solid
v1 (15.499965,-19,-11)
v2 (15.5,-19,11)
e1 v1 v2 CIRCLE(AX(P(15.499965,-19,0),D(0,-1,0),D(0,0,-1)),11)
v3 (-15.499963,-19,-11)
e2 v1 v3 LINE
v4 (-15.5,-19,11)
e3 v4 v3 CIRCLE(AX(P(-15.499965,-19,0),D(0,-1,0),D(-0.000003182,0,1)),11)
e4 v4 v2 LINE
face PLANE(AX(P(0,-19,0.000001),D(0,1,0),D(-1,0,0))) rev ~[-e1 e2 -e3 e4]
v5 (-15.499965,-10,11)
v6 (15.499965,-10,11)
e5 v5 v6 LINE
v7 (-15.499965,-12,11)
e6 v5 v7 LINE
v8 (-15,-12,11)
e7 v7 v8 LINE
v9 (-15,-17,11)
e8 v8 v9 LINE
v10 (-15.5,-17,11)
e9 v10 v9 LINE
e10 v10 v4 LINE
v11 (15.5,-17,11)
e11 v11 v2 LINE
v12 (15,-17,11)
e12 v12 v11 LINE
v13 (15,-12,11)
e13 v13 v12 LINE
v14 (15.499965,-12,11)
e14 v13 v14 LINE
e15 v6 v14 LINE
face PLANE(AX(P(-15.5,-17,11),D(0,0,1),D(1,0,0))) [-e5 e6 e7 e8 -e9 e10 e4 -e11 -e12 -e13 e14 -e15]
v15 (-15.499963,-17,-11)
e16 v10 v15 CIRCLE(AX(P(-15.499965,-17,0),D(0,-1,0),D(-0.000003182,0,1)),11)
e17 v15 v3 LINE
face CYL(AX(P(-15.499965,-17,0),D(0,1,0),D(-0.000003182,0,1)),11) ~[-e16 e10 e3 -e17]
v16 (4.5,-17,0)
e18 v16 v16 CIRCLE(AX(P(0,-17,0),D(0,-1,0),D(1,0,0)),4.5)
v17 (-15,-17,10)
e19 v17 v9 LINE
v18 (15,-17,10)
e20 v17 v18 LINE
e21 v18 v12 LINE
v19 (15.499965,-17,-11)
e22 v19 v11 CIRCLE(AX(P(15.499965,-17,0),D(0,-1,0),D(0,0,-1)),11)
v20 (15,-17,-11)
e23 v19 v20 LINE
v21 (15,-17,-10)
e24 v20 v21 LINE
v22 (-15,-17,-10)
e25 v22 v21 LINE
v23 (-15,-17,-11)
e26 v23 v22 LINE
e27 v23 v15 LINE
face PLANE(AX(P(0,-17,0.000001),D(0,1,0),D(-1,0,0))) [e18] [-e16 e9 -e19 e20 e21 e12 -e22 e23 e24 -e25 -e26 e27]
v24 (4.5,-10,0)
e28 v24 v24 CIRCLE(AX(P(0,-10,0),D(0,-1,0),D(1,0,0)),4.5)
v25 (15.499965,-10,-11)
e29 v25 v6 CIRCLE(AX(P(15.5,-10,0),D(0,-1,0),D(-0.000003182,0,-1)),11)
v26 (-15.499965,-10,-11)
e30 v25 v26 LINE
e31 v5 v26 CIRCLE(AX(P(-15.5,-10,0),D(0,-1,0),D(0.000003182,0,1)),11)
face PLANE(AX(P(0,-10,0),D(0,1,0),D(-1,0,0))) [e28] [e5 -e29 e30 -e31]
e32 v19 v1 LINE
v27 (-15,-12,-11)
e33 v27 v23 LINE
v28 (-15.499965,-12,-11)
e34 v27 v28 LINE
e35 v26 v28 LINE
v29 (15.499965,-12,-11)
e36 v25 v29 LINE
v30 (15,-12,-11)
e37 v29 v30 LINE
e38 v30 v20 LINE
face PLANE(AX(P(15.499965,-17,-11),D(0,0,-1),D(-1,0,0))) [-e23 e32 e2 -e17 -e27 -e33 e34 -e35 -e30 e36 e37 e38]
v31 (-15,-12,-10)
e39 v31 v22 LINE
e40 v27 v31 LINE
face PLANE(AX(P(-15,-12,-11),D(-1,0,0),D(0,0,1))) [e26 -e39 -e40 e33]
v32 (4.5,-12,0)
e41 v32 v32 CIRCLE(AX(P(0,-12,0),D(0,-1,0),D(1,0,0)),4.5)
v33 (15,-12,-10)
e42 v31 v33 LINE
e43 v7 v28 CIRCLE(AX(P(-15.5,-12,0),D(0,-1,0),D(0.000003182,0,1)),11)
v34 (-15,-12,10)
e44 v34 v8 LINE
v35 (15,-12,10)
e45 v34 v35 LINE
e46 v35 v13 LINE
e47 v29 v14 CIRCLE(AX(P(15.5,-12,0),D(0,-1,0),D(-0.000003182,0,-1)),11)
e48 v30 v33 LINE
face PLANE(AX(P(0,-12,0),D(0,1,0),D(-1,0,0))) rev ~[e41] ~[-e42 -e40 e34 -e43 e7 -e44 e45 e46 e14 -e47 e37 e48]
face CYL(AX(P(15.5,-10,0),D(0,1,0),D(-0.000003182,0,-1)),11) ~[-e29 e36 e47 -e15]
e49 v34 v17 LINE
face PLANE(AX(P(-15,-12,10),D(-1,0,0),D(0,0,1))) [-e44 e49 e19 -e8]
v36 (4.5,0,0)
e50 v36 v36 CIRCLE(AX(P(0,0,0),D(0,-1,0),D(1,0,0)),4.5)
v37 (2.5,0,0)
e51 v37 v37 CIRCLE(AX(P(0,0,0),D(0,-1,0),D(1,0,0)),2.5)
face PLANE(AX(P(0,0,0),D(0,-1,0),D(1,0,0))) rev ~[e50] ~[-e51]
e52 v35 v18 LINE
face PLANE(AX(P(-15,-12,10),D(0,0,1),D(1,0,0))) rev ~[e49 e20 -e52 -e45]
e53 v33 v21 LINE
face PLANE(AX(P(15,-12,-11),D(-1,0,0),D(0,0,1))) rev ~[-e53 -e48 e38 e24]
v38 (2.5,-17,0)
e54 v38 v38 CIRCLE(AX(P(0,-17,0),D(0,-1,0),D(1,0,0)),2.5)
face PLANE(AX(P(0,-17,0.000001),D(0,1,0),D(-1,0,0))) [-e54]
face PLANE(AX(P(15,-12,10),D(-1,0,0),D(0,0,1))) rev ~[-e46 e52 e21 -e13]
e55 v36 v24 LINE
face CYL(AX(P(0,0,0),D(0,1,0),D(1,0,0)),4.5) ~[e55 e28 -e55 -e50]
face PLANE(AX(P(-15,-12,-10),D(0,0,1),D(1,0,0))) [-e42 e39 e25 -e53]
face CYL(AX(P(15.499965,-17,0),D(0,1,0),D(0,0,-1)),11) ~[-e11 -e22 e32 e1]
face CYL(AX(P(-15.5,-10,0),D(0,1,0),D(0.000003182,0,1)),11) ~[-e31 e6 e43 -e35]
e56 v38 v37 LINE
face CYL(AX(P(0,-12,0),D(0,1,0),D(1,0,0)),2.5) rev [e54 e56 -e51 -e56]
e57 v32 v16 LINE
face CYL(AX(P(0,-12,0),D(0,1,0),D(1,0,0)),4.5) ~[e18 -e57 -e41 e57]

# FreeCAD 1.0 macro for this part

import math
import FreeCAD as App
import Part
import Sketcher
Q = App.Units.Quantity

doc = App.newDocument("Part")
body = doc.addObject("PartDesign::Body", "Body")

# Sketch on XZ plane
sketch1 = doc.addObject("Sketcher::SketchObject", "Sketch")
body.addObject(sketch1)
sketch1.AttachmentSupport = (doc.XZ_Plane, [""])
sketch1.MapMode = "FlatFace"
sketch1.addGeometry([
    Part.Circle(App.Vector(0, 0, 0), App.Vector(0, 0, 1), 4.5),
    Part.Circle(App.Vector(0, 0, 0), App.Vector(0, 0, 1), 2.5),
], False)
sketch1.addConstraint([
    Sketcher.Constraint("Coincident", 0, 3, -1, 1),
    Sketcher.Constraint("Coincident", 1, 3, -1, 1),
    Sketcher.Constraint("Diameter", 0, Q("9 mm")),
    Sketcher.Constraint("Diameter", 1, Q("5 mm")),
])
pad1 = doc.addObject("PartDesign::Pad", "Pad")
body.addObject(pad1)
pad1.Profile = sketch1
pad1.Length = 10

# Sketch on XZ plane
sketch2 = doc.addObject("Sketcher::SketchObject", "Sketch001")
body.addObject(sketch2)
sketch2.AttachmentSupport = (doc.XZ_Plane, [""])
sketch2.MapMode = "FlatFace"
sketch2.AttachmentOffset = App.Placement(App.Vector(0, 0, 10), App.Rotation())
sketch2.addGeometry([
    Part.LineSegment(App.Vector(-15.5, -11, 0), App.Vector(15.5, -11, 0)),  # 0
    Part.ArcOfCircle(Part.Circle(App.Vector(15.5, 0, 0), App.Vector(0, 0, 1), 11), math.radians(-90), math.radians(90)),  # 1
    Part.LineSegment(App.Vector(15.5, 11, 0), App.Vector(-15.5, 11, 0)),  # 2
    Part.ArcOfCircle(Part.Circle(App.Vector(-15.5, 0, 0), App.Vector(0, 0, 1), 11), math.radians(90), math.radians(270)),  # 3
    Part.Circle(App.Vector(0, 0, 0), App.Vector(0, 0, 1), 2.5),  # 4
], False)
sketch2.addConstraint([
    Sketcher.Constraint("Coincident", 0, 2, 1, 1),
    Sketcher.Constraint("Coincident", 1, 2, 2, 1),
    Sketcher.Constraint("Coincident", 2, 2, 3, 1),
    Sketcher.Constraint("Coincident", 3, 2, 0, 1),
    Sketcher.Constraint("Horizontal", 0),
    Sketcher.Constraint("Horizontal", 2),
    Sketcher.Constraint("Coincident", 4, 3, -1, 1),
    Sketcher.Constraint("Symmetric", 1, 3, 3, 3, -1, 1),
    Sketcher.Constraint("Vertical", 0, 2, 1, 2),
    Sketcher.Constraint("Vertical", 2, 2, 3, 2),
    Sketcher.Constraint("Diameter", 4, Q("5 mm")),
    Sketcher.Constraint("Radius", 1, Q("11 mm")),
    Sketcher.Constraint("DistanceX", 3, 3, 1, 3, Q("31 mm")),
    Sketcher.Constraint("DistanceX", 0, 1, 0, 2, Q("30.99993 mm")),
    Sketcher.Constraint("DistanceX", -1, 1, 0, 2, Q("15.499965 mm")),
])
pad2 = doc.addObject("PartDesign::Pad", "Pad001")
body.addObject(pad2)
pad2.Profile = sketch2
pad2.Length = 2

# Sketch on XZ plane
sketch3 = doc.addObject("Sketcher::SketchObject", "Sketch002")
body.addObject(sketch3)
sketch3.AttachmentSupport = (doc.XZ_Plane, [""])
sketch3.MapMode = "FlatFace"
sketch3.AttachmentOffset = App.Placement(App.Vector(0, 0, 12), App.Rotation())
sketch3.addGeometry([
    Part.Circle(App.Vector(0, 0, 0), App.Vector(0, 0, 1), 4.5),  # 0
    Part.Circle(App.Vector(0, 0, 0), App.Vector(0, 0, 1), 2.5),  # 1
    Part.LineSegment(App.Vector(-15, 11, 0), App.Vector(-15, 10, 0)),  # 2
    Part.LineSegment(App.Vector(-15, 10, 0), App.Vector(15, 10, 0)),  # 3
    Part.LineSegment(App.Vector(15, 10, 0), App.Vector(15, 11, 0)),  # 4
    Part.LineSegment(App.Vector(15, 11, 0), App.Vector(-15, 11, 0)),  # 5
    Part.LineSegment(App.Vector(-15, -10, 0), App.Vector(-15, -11, 0)),  # 6
    Part.LineSegment(App.Vector(-15, -11, 0), App.Vector(15, -11, 0)),  # 7
    Part.LineSegment(App.Vector(15, -11, 0), App.Vector(15, -10, 0)),  # 8
    Part.LineSegment(App.Vector(15, -10, 0), App.Vector(-15, -10, 0)),  # 9
], False)
sketch3.addConstraint([
    Sketcher.Constraint("Coincident", 2, 2, 3, 1),
    Sketcher.Constraint("Coincident", 3, 2, 4, 1),
    Sketcher.Constraint("Coincident", 4, 2, 5, 1),
    Sketcher.Constraint("Coincident", 5, 2, 2, 1),
    Sketcher.Constraint("Coincident", 6, 2, 7, 1),
    Sketcher.Constraint("Coincident", 7, 2, 8, 1),
    Sketcher.Constraint("Coincident", 8, 2, 9, 1),
    Sketcher.Constraint("Coincident", 9, 2, 6, 1),
    Sketcher.Constraint("Vertical", 2),
    Sketcher.Constraint("Horizontal", 3),
    Sketcher.Constraint("Vertical", 4),
    Sketcher.Constraint("Horizontal", 5),
    Sketcher.Constraint("Vertical", 6),
    Sketcher.Constraint("Horizontal", 7),
    Sketcher.Constraint("Vertical", 8),
    Sketcher.Constraint("Horizontal", 9),
    Sketcher.Constraint("Coincident", 0, 3, -1, 1),
    Sketcher.Constraint("Coincident", 1, 3, -1, 1),
    Sketcher.Constraint("Symmetric", 4, 2, 6, 2, -1, 1),
    Sketcher.Constraint("Symmetric", 2, 2, 8, 2, -1, 1),
    Sketcher.Constraint("Vertical", 5, 2, 6, 2),
    Sketcher.Constraint("Diameter", 0, Q("9 mm")),
    Sketcher.Constraint("Diameter", 1, Q("5 mm")),
    Sketcher.Constraint("DistanceX", 3, 1, 3, 2, Q("30 mm")),
    Sketcher.Constraint("DistanceY", 2, 2, 2, 1, Q("1 mm")),
    Sketcher.Constraint("DistanceY", -1, 1, 2, 2, Q("10 mm")),
])
pad3 = doc.addObject("PartDesign::Pad", "Pad002")
body.addObject(pad3)
pad3.Profile = sketch3
pad3.Length = 5

# Sketch on XZ plane
sketch4 = doc.addObject("Sketcher::SketchObject", "Sketch003")
body.addObject(sketch4)
sketch4.AttachmentSupport = (doc.XZ_Plane, [""])
sketch4.MapMode = "FlatFace"
sketch4.AttachmentOffset = App.Placement(App.Vector(0, 0, 17), App.Rotation())
sketch4.addGeometry([
    Part.LineSegment(App.Vector(16, 11, 0), App.Vector(-16, 11, 0)),
    Part.ArcOfCircle(Part.Circle(App.Vector(-15, 0, 0), App.Vector(0, 0, 1), 11), math.radians(90), math.radians(270)),
    Part.LineSegment(App.Vector(-15, -11, 0), App.Vector(15, -11, 0)),
    Part.ArcOfCircle(Part.Circle(App.Vector(15, 0, 0), App.Vector(0, 0, 1), 11), math.radians(-90), math.radians(90)),
], False)
sketch4.addConstraint([
    Sketcher.Constraint("Coincident", 0, 2, 1, 1),
    Sketcher.Constraint("Tangent", 1, 2, 2, 1),
    Sketcher.Constraint("Tangent", 2, 2, 3, 1),
    Sketcher.Constraint("Coincident", 3, 2, 0, 1),
    Sketcher.Constraint("Horizontal", 0),
    Sketcher.Constraint("Horizontal", 2),
    Sketcher.Constraint("Symmetric", 1, 3, 3, 3, -1, 1),
    Sketcher.Constraint("Radius", 1, Q("11 mm")),
    Sketcher.Constraint("DistanceX", 0, 2, 0, 1, Q("31 mm")),
    Sketcher.Constraint("DistanceX", 0, 2, -1, 1, Q("15.5 mm")),
    Sketcher.Constraint("DistanceX", 2, 1, 2, 2, Q("30.999928 mm")),
])
pad4 = doc.addObject("PartDesign::Pad", "Pad003")
body.addObject(pad4)
pad4.Profile = sketch4
pad4.Length = 2

doc.recompute()
